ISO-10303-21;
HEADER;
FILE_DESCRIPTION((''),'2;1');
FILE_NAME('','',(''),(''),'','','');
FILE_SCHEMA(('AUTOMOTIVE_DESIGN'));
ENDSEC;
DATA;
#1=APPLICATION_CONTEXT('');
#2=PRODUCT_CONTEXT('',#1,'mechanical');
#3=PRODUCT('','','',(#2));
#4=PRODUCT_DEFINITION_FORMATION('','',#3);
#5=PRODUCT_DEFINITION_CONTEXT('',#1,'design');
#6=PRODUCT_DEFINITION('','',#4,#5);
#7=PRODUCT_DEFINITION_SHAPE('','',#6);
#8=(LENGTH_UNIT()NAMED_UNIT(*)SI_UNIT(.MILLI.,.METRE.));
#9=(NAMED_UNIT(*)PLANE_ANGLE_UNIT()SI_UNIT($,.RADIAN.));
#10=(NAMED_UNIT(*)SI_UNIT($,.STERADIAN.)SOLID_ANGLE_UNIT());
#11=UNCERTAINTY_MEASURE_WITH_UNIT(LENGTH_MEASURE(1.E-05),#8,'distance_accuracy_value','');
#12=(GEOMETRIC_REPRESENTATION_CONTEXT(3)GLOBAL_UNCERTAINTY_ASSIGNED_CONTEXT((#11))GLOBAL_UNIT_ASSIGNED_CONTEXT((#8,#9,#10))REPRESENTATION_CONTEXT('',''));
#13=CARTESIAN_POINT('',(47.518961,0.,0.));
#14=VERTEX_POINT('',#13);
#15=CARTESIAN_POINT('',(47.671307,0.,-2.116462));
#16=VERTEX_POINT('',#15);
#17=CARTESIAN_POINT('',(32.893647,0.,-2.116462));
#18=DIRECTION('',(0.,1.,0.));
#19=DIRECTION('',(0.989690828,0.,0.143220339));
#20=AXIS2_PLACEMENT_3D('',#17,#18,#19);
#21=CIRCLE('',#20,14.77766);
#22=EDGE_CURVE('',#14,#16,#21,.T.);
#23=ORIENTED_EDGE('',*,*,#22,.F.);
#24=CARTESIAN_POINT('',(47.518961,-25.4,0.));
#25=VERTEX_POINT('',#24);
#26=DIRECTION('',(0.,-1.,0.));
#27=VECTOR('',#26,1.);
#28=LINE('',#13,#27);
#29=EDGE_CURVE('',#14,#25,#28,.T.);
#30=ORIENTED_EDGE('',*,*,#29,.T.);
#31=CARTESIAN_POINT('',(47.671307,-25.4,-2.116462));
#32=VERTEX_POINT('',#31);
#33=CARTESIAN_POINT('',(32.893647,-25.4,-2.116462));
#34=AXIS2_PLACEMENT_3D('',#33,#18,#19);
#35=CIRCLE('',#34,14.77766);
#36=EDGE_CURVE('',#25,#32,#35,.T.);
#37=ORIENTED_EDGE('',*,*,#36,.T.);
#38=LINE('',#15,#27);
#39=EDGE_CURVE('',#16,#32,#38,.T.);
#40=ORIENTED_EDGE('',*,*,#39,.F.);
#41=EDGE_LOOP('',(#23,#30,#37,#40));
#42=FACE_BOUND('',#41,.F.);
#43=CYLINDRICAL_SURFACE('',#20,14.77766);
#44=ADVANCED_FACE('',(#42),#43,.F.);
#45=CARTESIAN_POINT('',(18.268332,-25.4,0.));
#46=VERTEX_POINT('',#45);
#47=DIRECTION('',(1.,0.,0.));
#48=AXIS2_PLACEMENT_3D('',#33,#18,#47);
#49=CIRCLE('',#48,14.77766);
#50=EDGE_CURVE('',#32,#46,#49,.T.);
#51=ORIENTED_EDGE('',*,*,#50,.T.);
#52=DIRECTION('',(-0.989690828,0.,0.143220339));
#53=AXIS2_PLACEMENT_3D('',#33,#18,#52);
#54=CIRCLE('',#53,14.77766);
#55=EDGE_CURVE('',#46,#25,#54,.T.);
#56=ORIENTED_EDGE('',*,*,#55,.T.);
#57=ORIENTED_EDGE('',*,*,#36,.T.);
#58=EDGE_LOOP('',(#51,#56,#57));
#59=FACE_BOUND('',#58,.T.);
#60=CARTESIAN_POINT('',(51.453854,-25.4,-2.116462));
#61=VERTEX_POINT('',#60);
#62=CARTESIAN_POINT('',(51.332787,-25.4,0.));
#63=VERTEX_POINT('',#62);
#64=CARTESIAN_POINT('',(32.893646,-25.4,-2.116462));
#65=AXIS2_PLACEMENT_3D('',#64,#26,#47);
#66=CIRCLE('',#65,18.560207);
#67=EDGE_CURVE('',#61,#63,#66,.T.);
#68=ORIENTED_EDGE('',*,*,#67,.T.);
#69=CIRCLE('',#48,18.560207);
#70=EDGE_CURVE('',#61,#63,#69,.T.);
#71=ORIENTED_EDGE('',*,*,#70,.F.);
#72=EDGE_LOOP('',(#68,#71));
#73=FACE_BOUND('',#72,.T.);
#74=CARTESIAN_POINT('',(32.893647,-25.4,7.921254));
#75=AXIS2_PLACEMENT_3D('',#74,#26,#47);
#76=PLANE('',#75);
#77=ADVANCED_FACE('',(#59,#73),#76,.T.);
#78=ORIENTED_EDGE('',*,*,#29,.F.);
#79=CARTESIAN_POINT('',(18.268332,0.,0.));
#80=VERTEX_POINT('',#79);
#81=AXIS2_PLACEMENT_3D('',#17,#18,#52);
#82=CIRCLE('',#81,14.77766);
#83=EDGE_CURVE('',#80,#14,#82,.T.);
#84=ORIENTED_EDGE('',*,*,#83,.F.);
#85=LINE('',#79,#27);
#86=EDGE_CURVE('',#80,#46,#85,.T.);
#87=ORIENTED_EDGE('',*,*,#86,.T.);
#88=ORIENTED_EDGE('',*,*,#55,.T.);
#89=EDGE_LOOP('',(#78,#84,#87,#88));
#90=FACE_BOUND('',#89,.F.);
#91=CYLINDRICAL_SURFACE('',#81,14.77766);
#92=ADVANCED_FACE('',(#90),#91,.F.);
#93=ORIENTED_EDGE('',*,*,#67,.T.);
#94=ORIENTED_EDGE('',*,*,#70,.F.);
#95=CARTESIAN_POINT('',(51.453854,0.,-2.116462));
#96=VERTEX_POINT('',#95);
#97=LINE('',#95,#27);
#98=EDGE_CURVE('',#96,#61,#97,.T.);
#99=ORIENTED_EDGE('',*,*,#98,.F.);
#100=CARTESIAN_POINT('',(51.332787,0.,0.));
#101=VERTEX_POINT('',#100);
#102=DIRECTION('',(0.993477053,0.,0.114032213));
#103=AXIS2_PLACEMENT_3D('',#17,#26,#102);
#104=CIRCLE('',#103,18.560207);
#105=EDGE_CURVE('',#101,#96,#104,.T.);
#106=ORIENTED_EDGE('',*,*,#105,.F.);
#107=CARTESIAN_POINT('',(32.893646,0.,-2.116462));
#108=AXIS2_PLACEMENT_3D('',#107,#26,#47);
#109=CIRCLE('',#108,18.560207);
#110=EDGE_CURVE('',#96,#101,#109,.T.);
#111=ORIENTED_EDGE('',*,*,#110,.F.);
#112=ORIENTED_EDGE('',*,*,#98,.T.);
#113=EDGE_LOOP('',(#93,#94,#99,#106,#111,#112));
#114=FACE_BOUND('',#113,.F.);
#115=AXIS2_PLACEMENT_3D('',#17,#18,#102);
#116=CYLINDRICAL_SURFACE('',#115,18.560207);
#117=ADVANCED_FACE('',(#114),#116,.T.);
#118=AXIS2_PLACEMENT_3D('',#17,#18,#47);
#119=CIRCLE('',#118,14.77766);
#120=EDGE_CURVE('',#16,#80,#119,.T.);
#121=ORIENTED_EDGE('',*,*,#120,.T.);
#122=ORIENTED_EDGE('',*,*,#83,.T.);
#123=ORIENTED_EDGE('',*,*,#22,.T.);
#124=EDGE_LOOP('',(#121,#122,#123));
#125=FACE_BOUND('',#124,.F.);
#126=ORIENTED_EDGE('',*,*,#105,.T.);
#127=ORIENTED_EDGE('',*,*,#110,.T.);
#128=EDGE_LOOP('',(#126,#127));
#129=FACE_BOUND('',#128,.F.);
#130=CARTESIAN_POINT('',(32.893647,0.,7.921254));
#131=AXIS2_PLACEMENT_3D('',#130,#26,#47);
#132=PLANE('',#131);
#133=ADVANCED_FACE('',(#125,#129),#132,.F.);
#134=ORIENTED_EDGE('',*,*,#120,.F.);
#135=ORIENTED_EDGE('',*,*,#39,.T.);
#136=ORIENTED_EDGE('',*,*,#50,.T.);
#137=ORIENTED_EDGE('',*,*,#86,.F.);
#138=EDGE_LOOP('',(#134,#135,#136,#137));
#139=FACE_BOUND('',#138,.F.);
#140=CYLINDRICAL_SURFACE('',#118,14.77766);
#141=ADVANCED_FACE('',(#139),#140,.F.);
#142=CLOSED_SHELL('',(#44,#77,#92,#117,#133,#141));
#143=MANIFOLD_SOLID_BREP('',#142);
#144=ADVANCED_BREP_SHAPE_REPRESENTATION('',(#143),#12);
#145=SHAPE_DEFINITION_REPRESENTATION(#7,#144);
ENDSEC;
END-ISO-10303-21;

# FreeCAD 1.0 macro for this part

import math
import FreeCAD as App
import Part
import Sketcher
Q = App.Units.Quantity

doc = App.newDocument("Part")
body = doc.addObject("PartDesign::Body", "Body")

sketch1 = body.newObject("Sketcher::SketchObject", "Sketch")
sketch1.AttachmentSupport = (doc.getObject("XZ_Plane"), [""])
sketch1.MapMode = "FlatFace"
sketch1.addGeometry(Part.LineSegment(App.Vector(18.3, 0, 0), App.Vector(14.5, 0, 0)), False)
sketch1.addGeometry(Part.ArcOfCircle(Part.Circle(App.Vector(32.9, -2.1, 0), App.Vector(0, 0, 1), 18.6), math.radians(173), math.radians(360)), False)
sketch1.addGeometry(Part.ArcOfCircle(Part.Circle(App.Vector(32.9, -2.1, 0), App.Vector(0, 0, 1), 18.6), math.radians(0), math.radians(6.55)), False)
sketch1.addGeometry(Part.LineSegment(App.Vector(51.3, 0, 0), App.Vector(47.5, 0, 0)), False)
sketch1.addGeometry(Part.ArcOfCircle(Part.Circle(App.Vector(32.9, -2.1, 0), App.Vector(0, 0, 1), 14.8), math.radians(0), math.radians(8.23)), False)
sketch1.addGeometry(Part.ArcOfCircle(Part.Circle(App.Vector(32.9, -2.1, 0), App.Vector(0, 0, 1), 14.8), math.radians(172), math.radians(360)), False)
sketch1.addConstraint(Sketcher.Constraint("Coincident", 0, 2, 1, 1))
sketch1.addConstraint(Sketcher.Constraint("Tangent", 1, 2, 2, 1))
sketch1.addConstraint(Sketcher.Constraint("Coincident", 2, 2, 3, 1))
sketch1.addConstraint(Sketcher.Constraint("Coincident", 3, 2, 4, 2))
sketch1.addConstraint(Sketcher.Constraint("Tangent", 4, 1, 5, 2))
sketch1.addConstraint(Sketcher.Constraint("Coincident", 5, 1, 0, 1))
sketch1.addConstraint(Sketcher.Constraint("Horizontal", 0))
sketch1.addConstraint(Sketcher.Constraint("Horizontal", 3))
sketch1.addConstraint(Sketcher.Constraint("Coincident", 4, 3, 1, 3))
sketch1.addConstraint(Sketcher.Constraint("Equal", 1, 2))
sketch1.addConstraint(Sketcher.Constraint("Equal", 4, 5))
sketch1.addConstraint(Sketcher.Constraint("PointOnObject", 0, 2, -1))
sketch1.addConstraint(Sketcher.Constraint("PointOnObject", 2, 2, -1))
sketch1.addConstraint(Sketcher.Constraint("Horizontal", 5, 3, 1, 2))
sketch1.addConstraint(Sketcher.Constraint("Horizontal", 1, 2, 4, 1))
sketch1.addConstraint(Sketcher.Constraint("Radius", 4, Q("14.77766 mm")))
sketch1.addConstraint(Sketcher.Constraint("Radius", 1, Q("18.560207 mm")))
sketch1.addConstraint(Sketcher.Constraint("DistanceX", 0, 2, 0, 1, Q("3.813825 mm")))
sketch1.addConstraint(Sketcher.Constraint("DistanceX", -1, 1, 3, 2, Q("47.518961 mm")))
pad1 = body.newObject("PartDesign::Pad", "Pad")
pad1.Profile = sketch1
pad1.Length = Q("1 in")

sketch2 = body.newObject("Sketcher::SketchObject", "Sketch001")
sketch2.AttachmentSupport = (doc.getObject("XZ_Plane"), [""])
sketch2.MapMode = "FlatFace"
sketch2.addGeometry(Part.ArcOfCircle(Part.Circle(App.Vector(32.9, -2.1, 0), App.Vector(0, 0, 1), 18.6), math.radians(7), math.radians(173)), False)
sketch2.addGeometry(Part.LineSegment(App.Vector(14.5, 0, 0), App.Vector(18.3, 0, 0)), False)
sketch2.addGeometry(Part.ArcOfCircle(Part.Circle(App.Vector(32.9, -2.1, 0), App.Vector(0, 0, 1), 14.8), math.radians(8), math.radians(172)), False)
sketch2.addGeometry(Part.LineSegment(App.Vector(47.5, 0, 0), App.Vector(51.3, 0, 0)), False)
sketch2.addConstraint(Sketcher.Constraint("Coincident", 0, 2, 1, 1))
sketch2.addConstraint(Sketcher.Constraint("Coincident", 1, 2, 2, 2))
sketch2.addConstraint(Sketcher.Constraint("Coincident", 2, 1, 3, 1))
sketch2.addConstraint(Sketcher.Constraint("Coincident", 3, 2, 0, 1))
sketch2.addConstraint(Sketcher.Constraint("Horizontal", 1))
sketch2.addConstraint(Sketcher.Constraint("Horizontal", 3))
sketch2.addConstraint(Sketcher.Constraint("Coincident", 2, 3, 0, 3))
sketch2.addConstraint(Sketcher.Constraint("PointOnObject", 0, 2, -1))
sketch2.addConstraint(Sketcher.Constraint("PointOnObject", 2, 1, -1))
sketch2.addConstraint(Sketcher.Constraint("Radius", 2, Q("14.77766 mm")))
sketch2.addConstraint(Sketcher.Constraint("Radius", 0, Q("18.560207 mm")))
sketch2.addConstraint(Sketcher.Constraint("DistanceX", 1, 1, 1, 2, Q("3.813825 mm")))
sketch2.addConstraint(Sketcher.Constraint("DistanceX", -1, 1, 1, 2, Q("18.268332 mm")))
pad2 = body.newObject("PartDesign::Pad", "Pad001")
pad2.Profile = sketch2
pad2.Length = Q("1 in")

doc.recompute()
